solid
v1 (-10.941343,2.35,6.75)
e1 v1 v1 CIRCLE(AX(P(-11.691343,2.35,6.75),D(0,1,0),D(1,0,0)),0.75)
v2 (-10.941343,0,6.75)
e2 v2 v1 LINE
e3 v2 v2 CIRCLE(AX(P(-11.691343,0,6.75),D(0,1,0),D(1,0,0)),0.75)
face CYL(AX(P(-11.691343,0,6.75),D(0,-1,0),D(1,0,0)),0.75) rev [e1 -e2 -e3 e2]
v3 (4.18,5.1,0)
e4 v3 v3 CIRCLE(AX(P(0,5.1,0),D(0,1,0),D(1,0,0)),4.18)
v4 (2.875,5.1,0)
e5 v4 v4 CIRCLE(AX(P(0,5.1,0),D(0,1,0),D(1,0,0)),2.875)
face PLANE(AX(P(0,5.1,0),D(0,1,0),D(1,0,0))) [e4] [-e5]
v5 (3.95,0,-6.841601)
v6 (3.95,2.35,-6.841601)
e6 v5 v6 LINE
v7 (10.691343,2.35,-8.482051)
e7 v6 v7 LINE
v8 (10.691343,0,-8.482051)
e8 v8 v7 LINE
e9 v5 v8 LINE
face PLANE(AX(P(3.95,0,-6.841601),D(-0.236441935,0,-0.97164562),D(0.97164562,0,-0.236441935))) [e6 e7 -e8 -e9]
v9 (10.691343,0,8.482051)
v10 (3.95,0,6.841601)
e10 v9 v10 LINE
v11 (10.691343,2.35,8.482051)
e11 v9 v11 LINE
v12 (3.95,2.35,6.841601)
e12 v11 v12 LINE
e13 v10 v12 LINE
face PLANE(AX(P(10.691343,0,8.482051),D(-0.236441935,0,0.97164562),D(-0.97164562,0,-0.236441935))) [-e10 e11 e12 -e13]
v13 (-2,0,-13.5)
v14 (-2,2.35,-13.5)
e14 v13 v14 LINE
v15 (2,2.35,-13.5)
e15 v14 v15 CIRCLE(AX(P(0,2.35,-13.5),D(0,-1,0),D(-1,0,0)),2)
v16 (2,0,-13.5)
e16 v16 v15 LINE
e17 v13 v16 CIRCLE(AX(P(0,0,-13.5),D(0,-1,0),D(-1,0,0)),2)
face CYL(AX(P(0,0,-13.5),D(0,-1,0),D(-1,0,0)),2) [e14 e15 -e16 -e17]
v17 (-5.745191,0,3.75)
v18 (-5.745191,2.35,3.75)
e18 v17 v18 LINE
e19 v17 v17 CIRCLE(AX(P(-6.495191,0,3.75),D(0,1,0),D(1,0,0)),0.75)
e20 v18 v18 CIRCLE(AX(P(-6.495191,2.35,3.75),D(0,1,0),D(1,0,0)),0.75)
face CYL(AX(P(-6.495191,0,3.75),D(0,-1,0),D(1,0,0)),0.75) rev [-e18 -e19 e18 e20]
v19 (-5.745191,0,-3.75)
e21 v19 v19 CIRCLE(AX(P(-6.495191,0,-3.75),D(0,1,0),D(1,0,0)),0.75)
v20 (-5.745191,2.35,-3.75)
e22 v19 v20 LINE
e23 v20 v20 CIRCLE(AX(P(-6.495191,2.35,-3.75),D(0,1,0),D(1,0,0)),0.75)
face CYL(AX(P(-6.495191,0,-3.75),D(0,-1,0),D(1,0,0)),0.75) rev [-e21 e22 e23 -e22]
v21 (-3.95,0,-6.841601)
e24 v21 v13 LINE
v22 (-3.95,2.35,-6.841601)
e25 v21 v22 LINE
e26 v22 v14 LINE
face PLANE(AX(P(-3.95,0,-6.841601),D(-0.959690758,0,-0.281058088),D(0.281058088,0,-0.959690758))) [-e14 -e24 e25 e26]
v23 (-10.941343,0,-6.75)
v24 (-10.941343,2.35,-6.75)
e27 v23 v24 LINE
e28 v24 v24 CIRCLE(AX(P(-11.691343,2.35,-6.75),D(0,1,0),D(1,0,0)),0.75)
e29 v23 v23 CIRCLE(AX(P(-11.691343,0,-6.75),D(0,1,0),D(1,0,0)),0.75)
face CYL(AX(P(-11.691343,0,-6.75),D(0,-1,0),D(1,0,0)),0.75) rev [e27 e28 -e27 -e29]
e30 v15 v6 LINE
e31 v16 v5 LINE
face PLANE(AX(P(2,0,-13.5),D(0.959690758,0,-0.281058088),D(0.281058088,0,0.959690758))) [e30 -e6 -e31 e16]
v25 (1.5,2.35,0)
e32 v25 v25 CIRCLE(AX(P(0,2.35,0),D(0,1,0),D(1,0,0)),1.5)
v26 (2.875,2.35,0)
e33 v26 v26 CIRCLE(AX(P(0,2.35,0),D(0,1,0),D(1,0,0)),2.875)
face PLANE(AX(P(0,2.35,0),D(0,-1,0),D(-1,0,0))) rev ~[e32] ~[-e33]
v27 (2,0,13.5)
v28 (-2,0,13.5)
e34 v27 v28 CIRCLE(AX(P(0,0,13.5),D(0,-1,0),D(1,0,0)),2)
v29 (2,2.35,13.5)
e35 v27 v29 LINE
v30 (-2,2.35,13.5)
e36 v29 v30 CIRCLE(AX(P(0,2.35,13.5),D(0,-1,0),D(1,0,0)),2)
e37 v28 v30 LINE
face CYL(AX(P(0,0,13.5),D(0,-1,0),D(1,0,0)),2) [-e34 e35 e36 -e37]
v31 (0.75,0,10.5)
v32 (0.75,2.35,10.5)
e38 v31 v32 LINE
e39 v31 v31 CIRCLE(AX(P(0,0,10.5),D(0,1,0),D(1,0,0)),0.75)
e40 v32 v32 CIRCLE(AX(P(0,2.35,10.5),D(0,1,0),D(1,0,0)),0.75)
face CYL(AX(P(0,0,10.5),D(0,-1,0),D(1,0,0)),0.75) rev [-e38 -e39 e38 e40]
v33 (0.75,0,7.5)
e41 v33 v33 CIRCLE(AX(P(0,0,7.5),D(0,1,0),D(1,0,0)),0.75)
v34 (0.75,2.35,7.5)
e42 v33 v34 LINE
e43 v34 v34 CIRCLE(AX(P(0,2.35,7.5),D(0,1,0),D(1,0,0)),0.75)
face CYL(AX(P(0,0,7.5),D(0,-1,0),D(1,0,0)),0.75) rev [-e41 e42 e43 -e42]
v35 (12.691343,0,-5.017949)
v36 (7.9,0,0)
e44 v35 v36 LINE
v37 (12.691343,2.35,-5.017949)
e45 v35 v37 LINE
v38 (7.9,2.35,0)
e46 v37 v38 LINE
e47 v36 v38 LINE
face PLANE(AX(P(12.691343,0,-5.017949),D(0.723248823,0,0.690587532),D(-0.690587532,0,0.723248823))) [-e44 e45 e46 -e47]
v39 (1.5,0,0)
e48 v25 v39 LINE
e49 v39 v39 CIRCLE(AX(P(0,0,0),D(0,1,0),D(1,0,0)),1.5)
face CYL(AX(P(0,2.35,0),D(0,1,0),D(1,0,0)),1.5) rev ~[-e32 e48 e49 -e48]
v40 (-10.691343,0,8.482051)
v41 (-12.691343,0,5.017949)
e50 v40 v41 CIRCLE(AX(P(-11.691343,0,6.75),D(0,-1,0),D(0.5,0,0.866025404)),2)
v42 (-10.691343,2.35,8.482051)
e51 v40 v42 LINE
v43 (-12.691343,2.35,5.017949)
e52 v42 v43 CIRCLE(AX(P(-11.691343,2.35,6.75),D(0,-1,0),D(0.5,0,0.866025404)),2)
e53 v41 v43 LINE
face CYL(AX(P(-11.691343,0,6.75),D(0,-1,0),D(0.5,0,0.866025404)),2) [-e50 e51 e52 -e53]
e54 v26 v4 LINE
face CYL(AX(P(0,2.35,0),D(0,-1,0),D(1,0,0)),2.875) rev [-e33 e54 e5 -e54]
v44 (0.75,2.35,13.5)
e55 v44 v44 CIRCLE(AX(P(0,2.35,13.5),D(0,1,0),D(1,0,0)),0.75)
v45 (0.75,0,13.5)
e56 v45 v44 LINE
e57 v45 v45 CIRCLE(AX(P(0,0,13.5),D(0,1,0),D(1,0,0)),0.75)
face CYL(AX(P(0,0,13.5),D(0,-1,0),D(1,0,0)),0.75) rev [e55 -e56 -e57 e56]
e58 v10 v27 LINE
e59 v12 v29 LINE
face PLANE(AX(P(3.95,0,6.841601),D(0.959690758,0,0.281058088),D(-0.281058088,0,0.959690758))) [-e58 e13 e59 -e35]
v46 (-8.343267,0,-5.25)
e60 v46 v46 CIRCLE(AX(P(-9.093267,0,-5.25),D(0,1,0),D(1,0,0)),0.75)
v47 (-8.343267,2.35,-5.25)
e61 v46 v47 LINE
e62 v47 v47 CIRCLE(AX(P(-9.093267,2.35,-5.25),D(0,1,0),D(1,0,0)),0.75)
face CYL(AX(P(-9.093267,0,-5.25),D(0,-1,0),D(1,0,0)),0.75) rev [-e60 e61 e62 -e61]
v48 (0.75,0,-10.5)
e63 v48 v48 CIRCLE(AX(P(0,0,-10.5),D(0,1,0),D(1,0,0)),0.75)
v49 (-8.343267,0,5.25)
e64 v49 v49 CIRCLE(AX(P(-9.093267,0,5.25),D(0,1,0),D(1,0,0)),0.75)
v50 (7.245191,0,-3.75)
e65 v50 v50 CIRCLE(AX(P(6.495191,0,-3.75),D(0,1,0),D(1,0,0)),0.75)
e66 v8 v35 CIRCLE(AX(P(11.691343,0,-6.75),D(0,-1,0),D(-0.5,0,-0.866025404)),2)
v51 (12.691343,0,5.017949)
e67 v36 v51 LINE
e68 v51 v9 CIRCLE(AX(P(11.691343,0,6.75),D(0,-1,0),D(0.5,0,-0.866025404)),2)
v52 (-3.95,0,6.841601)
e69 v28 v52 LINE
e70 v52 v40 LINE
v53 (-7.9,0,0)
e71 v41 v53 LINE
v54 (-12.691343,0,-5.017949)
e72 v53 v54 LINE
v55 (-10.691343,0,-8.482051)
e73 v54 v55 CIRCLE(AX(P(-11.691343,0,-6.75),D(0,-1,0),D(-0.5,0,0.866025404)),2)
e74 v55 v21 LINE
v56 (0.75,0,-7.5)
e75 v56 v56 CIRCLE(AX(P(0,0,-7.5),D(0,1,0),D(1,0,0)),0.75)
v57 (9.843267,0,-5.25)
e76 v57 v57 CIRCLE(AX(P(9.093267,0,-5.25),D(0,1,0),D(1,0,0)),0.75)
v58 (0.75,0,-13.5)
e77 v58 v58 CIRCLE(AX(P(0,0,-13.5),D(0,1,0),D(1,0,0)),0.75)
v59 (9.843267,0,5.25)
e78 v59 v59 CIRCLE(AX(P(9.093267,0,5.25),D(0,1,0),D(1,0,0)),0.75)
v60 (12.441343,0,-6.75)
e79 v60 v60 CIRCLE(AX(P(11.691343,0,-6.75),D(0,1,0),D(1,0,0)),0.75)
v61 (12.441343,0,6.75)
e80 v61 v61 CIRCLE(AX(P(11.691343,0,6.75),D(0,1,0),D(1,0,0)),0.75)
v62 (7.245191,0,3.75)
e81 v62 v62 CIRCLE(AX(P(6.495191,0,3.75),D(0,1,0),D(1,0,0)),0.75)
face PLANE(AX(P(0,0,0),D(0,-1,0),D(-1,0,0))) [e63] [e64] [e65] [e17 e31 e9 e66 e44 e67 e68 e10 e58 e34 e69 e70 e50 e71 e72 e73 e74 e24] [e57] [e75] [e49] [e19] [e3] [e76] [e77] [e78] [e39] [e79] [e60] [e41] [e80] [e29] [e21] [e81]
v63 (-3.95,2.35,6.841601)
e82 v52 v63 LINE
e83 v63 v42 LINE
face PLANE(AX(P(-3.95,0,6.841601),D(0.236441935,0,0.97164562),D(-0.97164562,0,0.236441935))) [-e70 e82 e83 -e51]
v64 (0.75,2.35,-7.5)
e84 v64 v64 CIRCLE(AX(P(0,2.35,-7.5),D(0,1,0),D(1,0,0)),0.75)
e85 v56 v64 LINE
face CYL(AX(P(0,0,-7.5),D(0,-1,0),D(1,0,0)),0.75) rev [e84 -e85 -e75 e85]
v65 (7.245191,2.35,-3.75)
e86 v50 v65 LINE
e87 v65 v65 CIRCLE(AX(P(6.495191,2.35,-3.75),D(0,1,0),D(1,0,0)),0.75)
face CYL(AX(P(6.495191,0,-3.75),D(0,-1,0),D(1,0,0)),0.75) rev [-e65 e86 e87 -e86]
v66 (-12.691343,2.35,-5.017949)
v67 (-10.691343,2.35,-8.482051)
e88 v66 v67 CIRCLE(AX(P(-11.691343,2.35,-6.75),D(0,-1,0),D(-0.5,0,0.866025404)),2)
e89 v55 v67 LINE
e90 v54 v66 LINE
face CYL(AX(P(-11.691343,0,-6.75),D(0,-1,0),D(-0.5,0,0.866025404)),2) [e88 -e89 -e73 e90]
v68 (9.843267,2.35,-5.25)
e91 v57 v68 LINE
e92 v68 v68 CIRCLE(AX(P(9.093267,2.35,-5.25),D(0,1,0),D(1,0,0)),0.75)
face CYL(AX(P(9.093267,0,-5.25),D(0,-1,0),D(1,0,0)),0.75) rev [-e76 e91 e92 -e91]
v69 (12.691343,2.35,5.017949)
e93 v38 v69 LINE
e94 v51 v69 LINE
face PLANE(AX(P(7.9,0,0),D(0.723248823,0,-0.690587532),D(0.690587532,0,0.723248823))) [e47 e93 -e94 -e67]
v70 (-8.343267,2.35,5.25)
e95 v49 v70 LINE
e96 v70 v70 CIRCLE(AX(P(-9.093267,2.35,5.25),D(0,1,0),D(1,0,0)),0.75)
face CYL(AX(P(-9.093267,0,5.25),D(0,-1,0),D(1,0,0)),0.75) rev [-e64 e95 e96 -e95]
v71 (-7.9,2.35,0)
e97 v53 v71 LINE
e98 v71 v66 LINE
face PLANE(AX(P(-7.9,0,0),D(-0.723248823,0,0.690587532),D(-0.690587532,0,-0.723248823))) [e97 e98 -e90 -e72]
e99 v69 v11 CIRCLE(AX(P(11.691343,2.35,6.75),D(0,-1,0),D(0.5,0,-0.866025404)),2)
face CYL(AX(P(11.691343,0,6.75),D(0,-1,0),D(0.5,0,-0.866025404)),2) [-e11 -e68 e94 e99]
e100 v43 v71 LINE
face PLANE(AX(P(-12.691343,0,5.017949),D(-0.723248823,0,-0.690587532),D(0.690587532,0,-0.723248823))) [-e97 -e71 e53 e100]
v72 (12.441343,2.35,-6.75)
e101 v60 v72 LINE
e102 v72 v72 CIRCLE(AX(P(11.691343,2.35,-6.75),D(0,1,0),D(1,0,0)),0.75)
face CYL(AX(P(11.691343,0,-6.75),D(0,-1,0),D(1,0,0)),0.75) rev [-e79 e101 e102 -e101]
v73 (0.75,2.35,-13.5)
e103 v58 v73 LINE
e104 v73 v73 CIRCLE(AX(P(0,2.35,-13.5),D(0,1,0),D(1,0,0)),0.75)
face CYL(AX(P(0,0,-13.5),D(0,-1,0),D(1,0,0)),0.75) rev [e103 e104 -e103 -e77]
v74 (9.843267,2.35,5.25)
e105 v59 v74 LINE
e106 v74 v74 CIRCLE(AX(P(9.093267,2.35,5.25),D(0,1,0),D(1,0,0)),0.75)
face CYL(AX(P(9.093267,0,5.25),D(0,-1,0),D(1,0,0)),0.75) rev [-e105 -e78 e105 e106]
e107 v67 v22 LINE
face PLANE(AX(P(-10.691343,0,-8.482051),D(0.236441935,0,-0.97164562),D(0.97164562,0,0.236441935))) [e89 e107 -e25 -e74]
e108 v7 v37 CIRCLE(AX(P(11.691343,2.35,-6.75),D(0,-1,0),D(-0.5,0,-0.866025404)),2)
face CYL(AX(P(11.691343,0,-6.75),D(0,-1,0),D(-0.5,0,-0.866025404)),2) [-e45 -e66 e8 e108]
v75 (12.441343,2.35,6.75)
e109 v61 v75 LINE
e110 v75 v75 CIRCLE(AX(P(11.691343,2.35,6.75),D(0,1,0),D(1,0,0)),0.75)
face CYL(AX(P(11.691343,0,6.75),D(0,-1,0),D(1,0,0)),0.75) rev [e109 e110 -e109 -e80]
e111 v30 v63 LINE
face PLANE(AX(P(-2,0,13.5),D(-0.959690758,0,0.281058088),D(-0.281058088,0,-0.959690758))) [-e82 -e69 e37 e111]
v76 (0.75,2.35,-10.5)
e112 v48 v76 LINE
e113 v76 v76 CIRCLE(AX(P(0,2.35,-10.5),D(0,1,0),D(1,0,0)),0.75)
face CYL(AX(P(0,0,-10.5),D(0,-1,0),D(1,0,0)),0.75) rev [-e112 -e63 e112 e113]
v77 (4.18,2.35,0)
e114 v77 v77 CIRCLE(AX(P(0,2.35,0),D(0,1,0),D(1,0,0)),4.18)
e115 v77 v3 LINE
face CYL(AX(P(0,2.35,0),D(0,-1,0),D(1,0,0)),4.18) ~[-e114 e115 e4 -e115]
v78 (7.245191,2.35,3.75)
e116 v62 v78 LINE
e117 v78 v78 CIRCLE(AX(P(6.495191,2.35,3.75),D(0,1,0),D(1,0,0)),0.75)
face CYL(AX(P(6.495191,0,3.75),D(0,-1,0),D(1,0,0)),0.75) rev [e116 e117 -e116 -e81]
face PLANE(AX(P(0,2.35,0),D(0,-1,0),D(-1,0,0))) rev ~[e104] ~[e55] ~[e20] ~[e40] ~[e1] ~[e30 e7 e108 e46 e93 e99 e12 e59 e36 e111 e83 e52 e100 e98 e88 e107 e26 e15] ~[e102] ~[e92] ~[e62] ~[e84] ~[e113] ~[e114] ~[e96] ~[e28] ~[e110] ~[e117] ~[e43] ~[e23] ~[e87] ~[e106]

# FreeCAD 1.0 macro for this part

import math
import FreeCAD as App
import Part
import Sketcher
from FreeCAD import Vector

doc = App.newDocument("Part")
body = doc.addObject("PartDesign::Body", "Body")

sketch1 = doc.addObject("Sketcher::SketchObject", "Sketch")
body.addObject(sketch1)
sketch1.AttachmentSupport = (doc.XZ_Plane, [""])
sketch1.MapMode = "FlatFace"
sketch1.addGeometry([
    Part.LineSegment(Vector(10.7, -8.5, 0), Vector(4, -6.8, 0)),
    Part.LineSegment(Vector(4, -6.8, 0), Vector(2, -13.5, 0)),
    Part.ArcOfCircle(Part.Circle(Vector(0, -13.5, 0), Vector(0, 0, 1), 2), math.radians(180), math.radians(360)),
    Part.LineSegment(Vector(-2, -13.5, 0), Vector(-4, -6.8, 0)),
    Part.LineSegment(Vector(-4, -6.8, 0), Vector(-10.7, -8.5, 0)),
    Part.ArcOfCircle(Part.Circle(Vector(-11.7, -6.8, 0), Vector(0, 0, 1), 2), math.radians(120), math.radians(300)),
    Part.LineSegment(Vector(-12.7, -5, 0), Vector(-7.9, 0, 0)),
    Part.LineSegment(Vector(-7.9, 0, 0), Vector(-12.7, 5, 0)),
    Part.ArcOfCircle(Part.Circle(Vector(-11.7, 6.8, 0), Vector(0, 0, 1), 2), math.radians(60), math.radians(240)),
    Part.LineSegment(Vector(-10.7, 8.5, 0), Vector(-4, 6.8, 0)),
    Part.LineSegment(Vector(-4, 6.8, 0), Vector(-2, 13.5, 0)),
    Part.ArcOfCircle(Part.Circle(Vector(0, 13.5, 0), Vector(0, 0, 1), 2), math.radians(0), math.radians(180)),
    Part.LineSegment(Vector(2, 13.5, 0), Vector(4, 6.8, 0)),
    Part.LineSegment(Vector(4, 6.8, 0), Vector(10.7, 8.5, 0)),
    Part.ArcOfCircle(Part.Circle(Vector(11.7, 6.8, 0), Vector(0, 0, 1), 2), math.radians(-60), math.radians(120)),
    Part.LineSegment(Vector(12.7, 5, 0), Vector(7.9, 0, 0)),
    Part.LineSegment(Vector(7.9, 0, 0), Vector(12.7, -5, 0)),
    Part.ArcOfCircle(Part.Circle(Vector(11.7, -6.8, 0), Vector(0, 0, 1), 2), math.radians(-120), math.radians(60)),
    Part.Circle(Vector(11.7, 6.8, 0), Vector(0, 0, 1), 0.8),
    Part.Circle(Vector(9.1, 5.2, 0), Vector(0, 0, 1), 0.8),
    Part.Circle(Vector(6.5, 3.8, 0), Vector(0, 0, 1), 0.8),
    Part.Circle(Vector(0, 13.5, 0), Vector(0, 0, 1), 0.8),
    Part.Circle(Vector(0, 10.5, 0), Vector(0, 0, 1), 0.8),
    Part.Circle(Vector(0, 7.5, 0), Vector(0, 0, 1), 0.8),
    Part.Circle(Vector(-6.5, 3.8, 0), Vector(0, 0, 1), 0.8),
    Part.Circle(Vector(-9.1, 5.2, 0), Vector(0, 0, 1), 0.8),
    Part.Circle(Vector(-11.7, 6.8, 0), Vector(0, 0, 1), 0.8),
    Part.Circle(Vector(11.7, -6.8, 0), Vector(0, 0, 1), 0.8),
    Part.Circle(Vector(9.1, -5.2, 0), Vector(0, 0, 1), 0.8),
    Part.Circle(Vector(6.5, -3.8, 0), Vector(0, 0, 1), 0.8),
    Part.Circle(Vector(-6.5, -3.8, 0), Vector(0, 0, 1), 0.8),
    Part.Circle(Vector(-9.1, -5.2, 0), Vector(0, 0, 1), 0.8),
    Part.Circle(Vector(-11.7, -6.8, 0), Vector(0, 0, 1), 0.8),
    Part.Circle(Vector(0, -7.5, 0), Vector(0, 0, 1), 0.8),
    Part.Circle(Vector(0, -10.5, 0), Vector(0, 0, 1), 0.8),
    Part.Circle(Vector(0, -13.5, 0), Vector(0, 0, 1), 0.8),
], False)
sketch1.addConstraint([
    Sketcher.Constraint("Coincident", 0, 2, 1, 1),
    Sketcher.Constraint("Coincident", 1, 2, 2, 2),
    Sketcher.Constraint("Coincident", 2, 1, 3, 1),
    Sketcher.Constraint("Coincident", 3, 2, 4, 1),
    Sketcher.Constraint("Coincident", 4, 2, 5, 2),
    Sketcher.Constraint("Coincident", 5, 1, 6, 1),
    Sketcher.Constraint("Coincident", 6, 2, 7, 1),
    Sketcher.Constraint("Coincident", 7, 2, 8, 2),
    Sketcher.Constraint("Coincident", 8, 1, 9, 1),
    Sketcher.Constraint("Coincident", 9, 2, 10, 1),
    Sketcher.Constraint("Coincident", 10, 2, 11, 2),
    Sketcher.Constraint("Coincident", 11, 1, 12, 1),
    Sketcher.Constraint("Coincident", 12, 2, 13, 1),
    Sketcher.Constraint("Coincident", 13, 2, 14, 2),
    Sketcher.Constraint("Coincident", 14, 1, 15, 1),
    Sketcher.Constraint("Coincident", 15, 2, 16, 1),
    Sketcher.Constraint("Coincident", 16, 2, 17, 2),
    Sketcher.Constraint("Coincident", 17, 1, 0, 1),
    Sketcher.Constraint("Coincident", 18, 3, 14, 3),
    Sketcher.Constraint("Coincident", 21, 3, 11, 3),
    Sketcher.Constraint("Coincident", 26, 3, 8, 3),
    Sketcher.Constraint("Coincident", 27, 3, 17, 3),
    Sketcher.Constraint("Coincident", 32, 3, 5, 3),
    Sketcher.Constraint("Coincident", 35, 3, 2, 3),
    Sketcher.Constraint("Equal", 2, 5),
    Sketcher.Constraint("Equal", 5, 8),
    Sketcher.Constraint("Equal", 8, 11),
    Sketcher.Constraint("Equal", 11, 14),
    Sketcher.Constraint("Equal", 14, 17),
    Sketcher.Constraint("Equal", 18, 19),
    Sketcher.Constraint("Equal", 19, 20),
    Sketcher.Constraint("Equal", 20, 21),
    Sketcher.Constraint("Equal", 21, 22),
    Sketcher.Constraint("Equal", 22, 23),
    Sketcher.Constraint("Equal", 23, 24),
    Sketcher.Constraint("Equal", 24, 25),
    Sketcher.Constraint("Equal", 25, 26),
    Sketcher.Constraint("Equal", 26, 27),
    Sketcher.Constraint("Equal", 27, 28),
    Sketcher.Constraint("Equal", 28, 29),
    Sketcher.Constraint("Equal", 29, 30),
    Sketcher.Constraint("Equal", 30, 31),
    Sketcher.Constraint("Equal", 31, 32),
    Sketcher.Constraint("Equal", 32, 33),
    Sketcher.Constraint("Equal", 33, 34),
    Sketcher.Constraint("Equal", 34, 35),
    Sketcher.Constraint("Symmetric", 2, 3, 11, 3, -1, 1),
    Sketcher.Constraint("Symmetric", 5, 3, 14, 3, -1, 1),
    Sketcher.Constraint("Symmetric", 8, 3, 17, 3, -1, 1),
    Sketcher.Constraint("Symmetric", 25, 3, 28, 3, -1, 1),
    Sketcher.Constraint("Symmetric", 24, 3, 29, 3, -1, 1),
    Sketcher.Constraint("Symmetric", 20, 3, 30, 3, -1, 1),
    Sketcher.Constraint("Symmetric", 19, 3, 31, 3, -1, 1),
    Sketcher.Constraint("Symmetric", 23, 3, 33, 3, -1, 1),
    Sketcher.Constraint("Symmetric", 22, 3, 34, 3, -1, 1),
    Sketcher.Constraint("Symmetric", 0, 2, 9, 2, -1, 1),
    Sketcher.Constraint("Symmetric", 3, 2, 12, 2, -1, 1),
    Sketcher.Constraint("Symmetric", 6, 2, 15, 2, -1, 1),
    Sketcher.Constraint("Symmetric", 8, 3, 14, 3, -2),
    Sketcher.Constraint("Symmetric", 20, 3, 24, 3, -2),
    Sketcher.Constraint("Symmetric", 19, 3, 25, 3, -2),
    Sketcher.Constraint("Symmetric", 1, 2, 2, 1, -2),
    Sketcher.Constraint("Symmetric", 0, 2, 3, 2, -2),
    Sketcher.Constraint("PointOnObject", 22, 3, -2),
    Sketcher.Constraint("PointOnObject", 23, 3, -2),
    Sketcher.Constraint("PointOnObject", 6, 2, -1),
    Sketcher.Constraint("Parallel", 0, 9),
    Sketcher.Constraint("Parallel", 1, 10),
    Sketcher.Constraint("Parallel", 3, 12),
    Sketcher.Constraint("Parallel", 4, 13),
    Sketcher.Constraint("Parallel", 6, 15),
    Sketcher.Constraint("Parallel", 7, 16),
    Sketcher.Constraint("Horizontal", 35, 3, 1, 2),
    Sketcher.Constraint("Horizontal", 8, 1, 13, 2),
    Sketcher.Constraint("Horizontal", 7, 2, 14, 1),
    Sketcher.Constraint("Equal", 0, 1),
    Sketcher.Constraint("Equal", 4, 6),
    Sketcher.Constraint("Radius", 2, 2.0),
    Sketcher.Constraint("Diameter", 18, 1.5),
    Sketcher.Constraint("DistanceY", 2, 3, 11, 3, 27.0),
    Sketcher.Constraint("DistanceY", 17, 3, 19, 3, 12.0),
    Sketcher.Constraint("DistanceY", 20, 3, 14, 3, 3.0),
    Sketcher.Constraint("DistanceY", 22, 3, 11, 3, 3.0),
    Sketcher.Constraint("DistanceY", 23, 3, 22, 3, 3.0),
    Sketcher.Constraint("DistanceX", 5, 3, 4, 2, 1.0),
    Sketcher.Constraint("DistanceX", 5, 1, 5, 3, 1.0),
    Sketcher.Constraint("DistanceX", 6, 2, -1, 1, 7.9),
    Sketcher.Constraint("DistanceY", 5, 3, 8, 3, 13.5),
    Sketcher.Constraint("DistanceX", -1, 1, 0, 2, 3.95),
    Sketcher.Constraint("DistanceX", -1, 1, 20, 3, 6.495191),
    Sketcher.Constraint("DistanceX", -1, 1, 19, 3, 9.093267),
])
pad1 = doc.addObject("PartDesign::Pad", "Pad")
body.addObject(pad1)
pad1.Profile = sketch1
pad1.Length = 2.35
pad1.Reversed = True

sketch2 = doc.addObject("Sketcher::SketchObject", "Sketch001")
body.addObject(sketch2)
sketch2.AttachmentSupport = (doc.XZ_Plane, [""])
sketch2.MapMode = "FlatFace"
sketch2.AttachmentOffset = App.Placement(Vector(0, 0, -2.35), App.Rotation())
sketch2.addGeometry(Part.Circle(Vector(0, 0, 0), Vector(0, 0, 1), 1.5), False)
sketch2.addConstraint([
    Sketcher.Constraint("Coincident", 0, 3, -1, 1),
    Sketcher.Constraint("Diameter", 0, 3.0),
])
pocket1 = doc.addObject("PartDesign::Pocket", "Pocket")
body.addObject(pocket1)
pocket1.Profile = sketch2
pocket1.Length = 2.35
pocket1.Reversed = True

sketch3 = doc.addObject("Sketcher::SketchObject", "Sketch002")
body.addObject(sketch3)
sketch3.AttachmentSupport = (doc.XZ_Plane, [""])
sketch3.MapMode = "FlatFace"
sketch3.AttachmentOffset = App.Placement(Vector(0, 0, -2.35), App.Rotation())
sketch3.addGeometry([
    Part.Circle(Vector(0, 0, 0), Vector(0, 0, 1), 4.2),
    Part.Circle(Vector(0, 0, 0), Vector(0, 0, 1), 2.9),
], False)
sketch3.addConstraint([
    Sketcher.Constraint("Coincident", 0, 3, -1, 1),
    Sketcher.Constraint("Coincident", 1, 3, -1, 1),
    Sketcher.Constraint("Diameter", 0, 8.36),
    Sketcher.Constraint("Diameter", 1, 5.75),
])
pad2 = doc.addObject("PartDesign::Pad", "Pad001")
body.addObject(pad2)
pad2.Profile = sketch3
pad2.Length = 2.75
pad2.Reversed = True

doc.recompute()
